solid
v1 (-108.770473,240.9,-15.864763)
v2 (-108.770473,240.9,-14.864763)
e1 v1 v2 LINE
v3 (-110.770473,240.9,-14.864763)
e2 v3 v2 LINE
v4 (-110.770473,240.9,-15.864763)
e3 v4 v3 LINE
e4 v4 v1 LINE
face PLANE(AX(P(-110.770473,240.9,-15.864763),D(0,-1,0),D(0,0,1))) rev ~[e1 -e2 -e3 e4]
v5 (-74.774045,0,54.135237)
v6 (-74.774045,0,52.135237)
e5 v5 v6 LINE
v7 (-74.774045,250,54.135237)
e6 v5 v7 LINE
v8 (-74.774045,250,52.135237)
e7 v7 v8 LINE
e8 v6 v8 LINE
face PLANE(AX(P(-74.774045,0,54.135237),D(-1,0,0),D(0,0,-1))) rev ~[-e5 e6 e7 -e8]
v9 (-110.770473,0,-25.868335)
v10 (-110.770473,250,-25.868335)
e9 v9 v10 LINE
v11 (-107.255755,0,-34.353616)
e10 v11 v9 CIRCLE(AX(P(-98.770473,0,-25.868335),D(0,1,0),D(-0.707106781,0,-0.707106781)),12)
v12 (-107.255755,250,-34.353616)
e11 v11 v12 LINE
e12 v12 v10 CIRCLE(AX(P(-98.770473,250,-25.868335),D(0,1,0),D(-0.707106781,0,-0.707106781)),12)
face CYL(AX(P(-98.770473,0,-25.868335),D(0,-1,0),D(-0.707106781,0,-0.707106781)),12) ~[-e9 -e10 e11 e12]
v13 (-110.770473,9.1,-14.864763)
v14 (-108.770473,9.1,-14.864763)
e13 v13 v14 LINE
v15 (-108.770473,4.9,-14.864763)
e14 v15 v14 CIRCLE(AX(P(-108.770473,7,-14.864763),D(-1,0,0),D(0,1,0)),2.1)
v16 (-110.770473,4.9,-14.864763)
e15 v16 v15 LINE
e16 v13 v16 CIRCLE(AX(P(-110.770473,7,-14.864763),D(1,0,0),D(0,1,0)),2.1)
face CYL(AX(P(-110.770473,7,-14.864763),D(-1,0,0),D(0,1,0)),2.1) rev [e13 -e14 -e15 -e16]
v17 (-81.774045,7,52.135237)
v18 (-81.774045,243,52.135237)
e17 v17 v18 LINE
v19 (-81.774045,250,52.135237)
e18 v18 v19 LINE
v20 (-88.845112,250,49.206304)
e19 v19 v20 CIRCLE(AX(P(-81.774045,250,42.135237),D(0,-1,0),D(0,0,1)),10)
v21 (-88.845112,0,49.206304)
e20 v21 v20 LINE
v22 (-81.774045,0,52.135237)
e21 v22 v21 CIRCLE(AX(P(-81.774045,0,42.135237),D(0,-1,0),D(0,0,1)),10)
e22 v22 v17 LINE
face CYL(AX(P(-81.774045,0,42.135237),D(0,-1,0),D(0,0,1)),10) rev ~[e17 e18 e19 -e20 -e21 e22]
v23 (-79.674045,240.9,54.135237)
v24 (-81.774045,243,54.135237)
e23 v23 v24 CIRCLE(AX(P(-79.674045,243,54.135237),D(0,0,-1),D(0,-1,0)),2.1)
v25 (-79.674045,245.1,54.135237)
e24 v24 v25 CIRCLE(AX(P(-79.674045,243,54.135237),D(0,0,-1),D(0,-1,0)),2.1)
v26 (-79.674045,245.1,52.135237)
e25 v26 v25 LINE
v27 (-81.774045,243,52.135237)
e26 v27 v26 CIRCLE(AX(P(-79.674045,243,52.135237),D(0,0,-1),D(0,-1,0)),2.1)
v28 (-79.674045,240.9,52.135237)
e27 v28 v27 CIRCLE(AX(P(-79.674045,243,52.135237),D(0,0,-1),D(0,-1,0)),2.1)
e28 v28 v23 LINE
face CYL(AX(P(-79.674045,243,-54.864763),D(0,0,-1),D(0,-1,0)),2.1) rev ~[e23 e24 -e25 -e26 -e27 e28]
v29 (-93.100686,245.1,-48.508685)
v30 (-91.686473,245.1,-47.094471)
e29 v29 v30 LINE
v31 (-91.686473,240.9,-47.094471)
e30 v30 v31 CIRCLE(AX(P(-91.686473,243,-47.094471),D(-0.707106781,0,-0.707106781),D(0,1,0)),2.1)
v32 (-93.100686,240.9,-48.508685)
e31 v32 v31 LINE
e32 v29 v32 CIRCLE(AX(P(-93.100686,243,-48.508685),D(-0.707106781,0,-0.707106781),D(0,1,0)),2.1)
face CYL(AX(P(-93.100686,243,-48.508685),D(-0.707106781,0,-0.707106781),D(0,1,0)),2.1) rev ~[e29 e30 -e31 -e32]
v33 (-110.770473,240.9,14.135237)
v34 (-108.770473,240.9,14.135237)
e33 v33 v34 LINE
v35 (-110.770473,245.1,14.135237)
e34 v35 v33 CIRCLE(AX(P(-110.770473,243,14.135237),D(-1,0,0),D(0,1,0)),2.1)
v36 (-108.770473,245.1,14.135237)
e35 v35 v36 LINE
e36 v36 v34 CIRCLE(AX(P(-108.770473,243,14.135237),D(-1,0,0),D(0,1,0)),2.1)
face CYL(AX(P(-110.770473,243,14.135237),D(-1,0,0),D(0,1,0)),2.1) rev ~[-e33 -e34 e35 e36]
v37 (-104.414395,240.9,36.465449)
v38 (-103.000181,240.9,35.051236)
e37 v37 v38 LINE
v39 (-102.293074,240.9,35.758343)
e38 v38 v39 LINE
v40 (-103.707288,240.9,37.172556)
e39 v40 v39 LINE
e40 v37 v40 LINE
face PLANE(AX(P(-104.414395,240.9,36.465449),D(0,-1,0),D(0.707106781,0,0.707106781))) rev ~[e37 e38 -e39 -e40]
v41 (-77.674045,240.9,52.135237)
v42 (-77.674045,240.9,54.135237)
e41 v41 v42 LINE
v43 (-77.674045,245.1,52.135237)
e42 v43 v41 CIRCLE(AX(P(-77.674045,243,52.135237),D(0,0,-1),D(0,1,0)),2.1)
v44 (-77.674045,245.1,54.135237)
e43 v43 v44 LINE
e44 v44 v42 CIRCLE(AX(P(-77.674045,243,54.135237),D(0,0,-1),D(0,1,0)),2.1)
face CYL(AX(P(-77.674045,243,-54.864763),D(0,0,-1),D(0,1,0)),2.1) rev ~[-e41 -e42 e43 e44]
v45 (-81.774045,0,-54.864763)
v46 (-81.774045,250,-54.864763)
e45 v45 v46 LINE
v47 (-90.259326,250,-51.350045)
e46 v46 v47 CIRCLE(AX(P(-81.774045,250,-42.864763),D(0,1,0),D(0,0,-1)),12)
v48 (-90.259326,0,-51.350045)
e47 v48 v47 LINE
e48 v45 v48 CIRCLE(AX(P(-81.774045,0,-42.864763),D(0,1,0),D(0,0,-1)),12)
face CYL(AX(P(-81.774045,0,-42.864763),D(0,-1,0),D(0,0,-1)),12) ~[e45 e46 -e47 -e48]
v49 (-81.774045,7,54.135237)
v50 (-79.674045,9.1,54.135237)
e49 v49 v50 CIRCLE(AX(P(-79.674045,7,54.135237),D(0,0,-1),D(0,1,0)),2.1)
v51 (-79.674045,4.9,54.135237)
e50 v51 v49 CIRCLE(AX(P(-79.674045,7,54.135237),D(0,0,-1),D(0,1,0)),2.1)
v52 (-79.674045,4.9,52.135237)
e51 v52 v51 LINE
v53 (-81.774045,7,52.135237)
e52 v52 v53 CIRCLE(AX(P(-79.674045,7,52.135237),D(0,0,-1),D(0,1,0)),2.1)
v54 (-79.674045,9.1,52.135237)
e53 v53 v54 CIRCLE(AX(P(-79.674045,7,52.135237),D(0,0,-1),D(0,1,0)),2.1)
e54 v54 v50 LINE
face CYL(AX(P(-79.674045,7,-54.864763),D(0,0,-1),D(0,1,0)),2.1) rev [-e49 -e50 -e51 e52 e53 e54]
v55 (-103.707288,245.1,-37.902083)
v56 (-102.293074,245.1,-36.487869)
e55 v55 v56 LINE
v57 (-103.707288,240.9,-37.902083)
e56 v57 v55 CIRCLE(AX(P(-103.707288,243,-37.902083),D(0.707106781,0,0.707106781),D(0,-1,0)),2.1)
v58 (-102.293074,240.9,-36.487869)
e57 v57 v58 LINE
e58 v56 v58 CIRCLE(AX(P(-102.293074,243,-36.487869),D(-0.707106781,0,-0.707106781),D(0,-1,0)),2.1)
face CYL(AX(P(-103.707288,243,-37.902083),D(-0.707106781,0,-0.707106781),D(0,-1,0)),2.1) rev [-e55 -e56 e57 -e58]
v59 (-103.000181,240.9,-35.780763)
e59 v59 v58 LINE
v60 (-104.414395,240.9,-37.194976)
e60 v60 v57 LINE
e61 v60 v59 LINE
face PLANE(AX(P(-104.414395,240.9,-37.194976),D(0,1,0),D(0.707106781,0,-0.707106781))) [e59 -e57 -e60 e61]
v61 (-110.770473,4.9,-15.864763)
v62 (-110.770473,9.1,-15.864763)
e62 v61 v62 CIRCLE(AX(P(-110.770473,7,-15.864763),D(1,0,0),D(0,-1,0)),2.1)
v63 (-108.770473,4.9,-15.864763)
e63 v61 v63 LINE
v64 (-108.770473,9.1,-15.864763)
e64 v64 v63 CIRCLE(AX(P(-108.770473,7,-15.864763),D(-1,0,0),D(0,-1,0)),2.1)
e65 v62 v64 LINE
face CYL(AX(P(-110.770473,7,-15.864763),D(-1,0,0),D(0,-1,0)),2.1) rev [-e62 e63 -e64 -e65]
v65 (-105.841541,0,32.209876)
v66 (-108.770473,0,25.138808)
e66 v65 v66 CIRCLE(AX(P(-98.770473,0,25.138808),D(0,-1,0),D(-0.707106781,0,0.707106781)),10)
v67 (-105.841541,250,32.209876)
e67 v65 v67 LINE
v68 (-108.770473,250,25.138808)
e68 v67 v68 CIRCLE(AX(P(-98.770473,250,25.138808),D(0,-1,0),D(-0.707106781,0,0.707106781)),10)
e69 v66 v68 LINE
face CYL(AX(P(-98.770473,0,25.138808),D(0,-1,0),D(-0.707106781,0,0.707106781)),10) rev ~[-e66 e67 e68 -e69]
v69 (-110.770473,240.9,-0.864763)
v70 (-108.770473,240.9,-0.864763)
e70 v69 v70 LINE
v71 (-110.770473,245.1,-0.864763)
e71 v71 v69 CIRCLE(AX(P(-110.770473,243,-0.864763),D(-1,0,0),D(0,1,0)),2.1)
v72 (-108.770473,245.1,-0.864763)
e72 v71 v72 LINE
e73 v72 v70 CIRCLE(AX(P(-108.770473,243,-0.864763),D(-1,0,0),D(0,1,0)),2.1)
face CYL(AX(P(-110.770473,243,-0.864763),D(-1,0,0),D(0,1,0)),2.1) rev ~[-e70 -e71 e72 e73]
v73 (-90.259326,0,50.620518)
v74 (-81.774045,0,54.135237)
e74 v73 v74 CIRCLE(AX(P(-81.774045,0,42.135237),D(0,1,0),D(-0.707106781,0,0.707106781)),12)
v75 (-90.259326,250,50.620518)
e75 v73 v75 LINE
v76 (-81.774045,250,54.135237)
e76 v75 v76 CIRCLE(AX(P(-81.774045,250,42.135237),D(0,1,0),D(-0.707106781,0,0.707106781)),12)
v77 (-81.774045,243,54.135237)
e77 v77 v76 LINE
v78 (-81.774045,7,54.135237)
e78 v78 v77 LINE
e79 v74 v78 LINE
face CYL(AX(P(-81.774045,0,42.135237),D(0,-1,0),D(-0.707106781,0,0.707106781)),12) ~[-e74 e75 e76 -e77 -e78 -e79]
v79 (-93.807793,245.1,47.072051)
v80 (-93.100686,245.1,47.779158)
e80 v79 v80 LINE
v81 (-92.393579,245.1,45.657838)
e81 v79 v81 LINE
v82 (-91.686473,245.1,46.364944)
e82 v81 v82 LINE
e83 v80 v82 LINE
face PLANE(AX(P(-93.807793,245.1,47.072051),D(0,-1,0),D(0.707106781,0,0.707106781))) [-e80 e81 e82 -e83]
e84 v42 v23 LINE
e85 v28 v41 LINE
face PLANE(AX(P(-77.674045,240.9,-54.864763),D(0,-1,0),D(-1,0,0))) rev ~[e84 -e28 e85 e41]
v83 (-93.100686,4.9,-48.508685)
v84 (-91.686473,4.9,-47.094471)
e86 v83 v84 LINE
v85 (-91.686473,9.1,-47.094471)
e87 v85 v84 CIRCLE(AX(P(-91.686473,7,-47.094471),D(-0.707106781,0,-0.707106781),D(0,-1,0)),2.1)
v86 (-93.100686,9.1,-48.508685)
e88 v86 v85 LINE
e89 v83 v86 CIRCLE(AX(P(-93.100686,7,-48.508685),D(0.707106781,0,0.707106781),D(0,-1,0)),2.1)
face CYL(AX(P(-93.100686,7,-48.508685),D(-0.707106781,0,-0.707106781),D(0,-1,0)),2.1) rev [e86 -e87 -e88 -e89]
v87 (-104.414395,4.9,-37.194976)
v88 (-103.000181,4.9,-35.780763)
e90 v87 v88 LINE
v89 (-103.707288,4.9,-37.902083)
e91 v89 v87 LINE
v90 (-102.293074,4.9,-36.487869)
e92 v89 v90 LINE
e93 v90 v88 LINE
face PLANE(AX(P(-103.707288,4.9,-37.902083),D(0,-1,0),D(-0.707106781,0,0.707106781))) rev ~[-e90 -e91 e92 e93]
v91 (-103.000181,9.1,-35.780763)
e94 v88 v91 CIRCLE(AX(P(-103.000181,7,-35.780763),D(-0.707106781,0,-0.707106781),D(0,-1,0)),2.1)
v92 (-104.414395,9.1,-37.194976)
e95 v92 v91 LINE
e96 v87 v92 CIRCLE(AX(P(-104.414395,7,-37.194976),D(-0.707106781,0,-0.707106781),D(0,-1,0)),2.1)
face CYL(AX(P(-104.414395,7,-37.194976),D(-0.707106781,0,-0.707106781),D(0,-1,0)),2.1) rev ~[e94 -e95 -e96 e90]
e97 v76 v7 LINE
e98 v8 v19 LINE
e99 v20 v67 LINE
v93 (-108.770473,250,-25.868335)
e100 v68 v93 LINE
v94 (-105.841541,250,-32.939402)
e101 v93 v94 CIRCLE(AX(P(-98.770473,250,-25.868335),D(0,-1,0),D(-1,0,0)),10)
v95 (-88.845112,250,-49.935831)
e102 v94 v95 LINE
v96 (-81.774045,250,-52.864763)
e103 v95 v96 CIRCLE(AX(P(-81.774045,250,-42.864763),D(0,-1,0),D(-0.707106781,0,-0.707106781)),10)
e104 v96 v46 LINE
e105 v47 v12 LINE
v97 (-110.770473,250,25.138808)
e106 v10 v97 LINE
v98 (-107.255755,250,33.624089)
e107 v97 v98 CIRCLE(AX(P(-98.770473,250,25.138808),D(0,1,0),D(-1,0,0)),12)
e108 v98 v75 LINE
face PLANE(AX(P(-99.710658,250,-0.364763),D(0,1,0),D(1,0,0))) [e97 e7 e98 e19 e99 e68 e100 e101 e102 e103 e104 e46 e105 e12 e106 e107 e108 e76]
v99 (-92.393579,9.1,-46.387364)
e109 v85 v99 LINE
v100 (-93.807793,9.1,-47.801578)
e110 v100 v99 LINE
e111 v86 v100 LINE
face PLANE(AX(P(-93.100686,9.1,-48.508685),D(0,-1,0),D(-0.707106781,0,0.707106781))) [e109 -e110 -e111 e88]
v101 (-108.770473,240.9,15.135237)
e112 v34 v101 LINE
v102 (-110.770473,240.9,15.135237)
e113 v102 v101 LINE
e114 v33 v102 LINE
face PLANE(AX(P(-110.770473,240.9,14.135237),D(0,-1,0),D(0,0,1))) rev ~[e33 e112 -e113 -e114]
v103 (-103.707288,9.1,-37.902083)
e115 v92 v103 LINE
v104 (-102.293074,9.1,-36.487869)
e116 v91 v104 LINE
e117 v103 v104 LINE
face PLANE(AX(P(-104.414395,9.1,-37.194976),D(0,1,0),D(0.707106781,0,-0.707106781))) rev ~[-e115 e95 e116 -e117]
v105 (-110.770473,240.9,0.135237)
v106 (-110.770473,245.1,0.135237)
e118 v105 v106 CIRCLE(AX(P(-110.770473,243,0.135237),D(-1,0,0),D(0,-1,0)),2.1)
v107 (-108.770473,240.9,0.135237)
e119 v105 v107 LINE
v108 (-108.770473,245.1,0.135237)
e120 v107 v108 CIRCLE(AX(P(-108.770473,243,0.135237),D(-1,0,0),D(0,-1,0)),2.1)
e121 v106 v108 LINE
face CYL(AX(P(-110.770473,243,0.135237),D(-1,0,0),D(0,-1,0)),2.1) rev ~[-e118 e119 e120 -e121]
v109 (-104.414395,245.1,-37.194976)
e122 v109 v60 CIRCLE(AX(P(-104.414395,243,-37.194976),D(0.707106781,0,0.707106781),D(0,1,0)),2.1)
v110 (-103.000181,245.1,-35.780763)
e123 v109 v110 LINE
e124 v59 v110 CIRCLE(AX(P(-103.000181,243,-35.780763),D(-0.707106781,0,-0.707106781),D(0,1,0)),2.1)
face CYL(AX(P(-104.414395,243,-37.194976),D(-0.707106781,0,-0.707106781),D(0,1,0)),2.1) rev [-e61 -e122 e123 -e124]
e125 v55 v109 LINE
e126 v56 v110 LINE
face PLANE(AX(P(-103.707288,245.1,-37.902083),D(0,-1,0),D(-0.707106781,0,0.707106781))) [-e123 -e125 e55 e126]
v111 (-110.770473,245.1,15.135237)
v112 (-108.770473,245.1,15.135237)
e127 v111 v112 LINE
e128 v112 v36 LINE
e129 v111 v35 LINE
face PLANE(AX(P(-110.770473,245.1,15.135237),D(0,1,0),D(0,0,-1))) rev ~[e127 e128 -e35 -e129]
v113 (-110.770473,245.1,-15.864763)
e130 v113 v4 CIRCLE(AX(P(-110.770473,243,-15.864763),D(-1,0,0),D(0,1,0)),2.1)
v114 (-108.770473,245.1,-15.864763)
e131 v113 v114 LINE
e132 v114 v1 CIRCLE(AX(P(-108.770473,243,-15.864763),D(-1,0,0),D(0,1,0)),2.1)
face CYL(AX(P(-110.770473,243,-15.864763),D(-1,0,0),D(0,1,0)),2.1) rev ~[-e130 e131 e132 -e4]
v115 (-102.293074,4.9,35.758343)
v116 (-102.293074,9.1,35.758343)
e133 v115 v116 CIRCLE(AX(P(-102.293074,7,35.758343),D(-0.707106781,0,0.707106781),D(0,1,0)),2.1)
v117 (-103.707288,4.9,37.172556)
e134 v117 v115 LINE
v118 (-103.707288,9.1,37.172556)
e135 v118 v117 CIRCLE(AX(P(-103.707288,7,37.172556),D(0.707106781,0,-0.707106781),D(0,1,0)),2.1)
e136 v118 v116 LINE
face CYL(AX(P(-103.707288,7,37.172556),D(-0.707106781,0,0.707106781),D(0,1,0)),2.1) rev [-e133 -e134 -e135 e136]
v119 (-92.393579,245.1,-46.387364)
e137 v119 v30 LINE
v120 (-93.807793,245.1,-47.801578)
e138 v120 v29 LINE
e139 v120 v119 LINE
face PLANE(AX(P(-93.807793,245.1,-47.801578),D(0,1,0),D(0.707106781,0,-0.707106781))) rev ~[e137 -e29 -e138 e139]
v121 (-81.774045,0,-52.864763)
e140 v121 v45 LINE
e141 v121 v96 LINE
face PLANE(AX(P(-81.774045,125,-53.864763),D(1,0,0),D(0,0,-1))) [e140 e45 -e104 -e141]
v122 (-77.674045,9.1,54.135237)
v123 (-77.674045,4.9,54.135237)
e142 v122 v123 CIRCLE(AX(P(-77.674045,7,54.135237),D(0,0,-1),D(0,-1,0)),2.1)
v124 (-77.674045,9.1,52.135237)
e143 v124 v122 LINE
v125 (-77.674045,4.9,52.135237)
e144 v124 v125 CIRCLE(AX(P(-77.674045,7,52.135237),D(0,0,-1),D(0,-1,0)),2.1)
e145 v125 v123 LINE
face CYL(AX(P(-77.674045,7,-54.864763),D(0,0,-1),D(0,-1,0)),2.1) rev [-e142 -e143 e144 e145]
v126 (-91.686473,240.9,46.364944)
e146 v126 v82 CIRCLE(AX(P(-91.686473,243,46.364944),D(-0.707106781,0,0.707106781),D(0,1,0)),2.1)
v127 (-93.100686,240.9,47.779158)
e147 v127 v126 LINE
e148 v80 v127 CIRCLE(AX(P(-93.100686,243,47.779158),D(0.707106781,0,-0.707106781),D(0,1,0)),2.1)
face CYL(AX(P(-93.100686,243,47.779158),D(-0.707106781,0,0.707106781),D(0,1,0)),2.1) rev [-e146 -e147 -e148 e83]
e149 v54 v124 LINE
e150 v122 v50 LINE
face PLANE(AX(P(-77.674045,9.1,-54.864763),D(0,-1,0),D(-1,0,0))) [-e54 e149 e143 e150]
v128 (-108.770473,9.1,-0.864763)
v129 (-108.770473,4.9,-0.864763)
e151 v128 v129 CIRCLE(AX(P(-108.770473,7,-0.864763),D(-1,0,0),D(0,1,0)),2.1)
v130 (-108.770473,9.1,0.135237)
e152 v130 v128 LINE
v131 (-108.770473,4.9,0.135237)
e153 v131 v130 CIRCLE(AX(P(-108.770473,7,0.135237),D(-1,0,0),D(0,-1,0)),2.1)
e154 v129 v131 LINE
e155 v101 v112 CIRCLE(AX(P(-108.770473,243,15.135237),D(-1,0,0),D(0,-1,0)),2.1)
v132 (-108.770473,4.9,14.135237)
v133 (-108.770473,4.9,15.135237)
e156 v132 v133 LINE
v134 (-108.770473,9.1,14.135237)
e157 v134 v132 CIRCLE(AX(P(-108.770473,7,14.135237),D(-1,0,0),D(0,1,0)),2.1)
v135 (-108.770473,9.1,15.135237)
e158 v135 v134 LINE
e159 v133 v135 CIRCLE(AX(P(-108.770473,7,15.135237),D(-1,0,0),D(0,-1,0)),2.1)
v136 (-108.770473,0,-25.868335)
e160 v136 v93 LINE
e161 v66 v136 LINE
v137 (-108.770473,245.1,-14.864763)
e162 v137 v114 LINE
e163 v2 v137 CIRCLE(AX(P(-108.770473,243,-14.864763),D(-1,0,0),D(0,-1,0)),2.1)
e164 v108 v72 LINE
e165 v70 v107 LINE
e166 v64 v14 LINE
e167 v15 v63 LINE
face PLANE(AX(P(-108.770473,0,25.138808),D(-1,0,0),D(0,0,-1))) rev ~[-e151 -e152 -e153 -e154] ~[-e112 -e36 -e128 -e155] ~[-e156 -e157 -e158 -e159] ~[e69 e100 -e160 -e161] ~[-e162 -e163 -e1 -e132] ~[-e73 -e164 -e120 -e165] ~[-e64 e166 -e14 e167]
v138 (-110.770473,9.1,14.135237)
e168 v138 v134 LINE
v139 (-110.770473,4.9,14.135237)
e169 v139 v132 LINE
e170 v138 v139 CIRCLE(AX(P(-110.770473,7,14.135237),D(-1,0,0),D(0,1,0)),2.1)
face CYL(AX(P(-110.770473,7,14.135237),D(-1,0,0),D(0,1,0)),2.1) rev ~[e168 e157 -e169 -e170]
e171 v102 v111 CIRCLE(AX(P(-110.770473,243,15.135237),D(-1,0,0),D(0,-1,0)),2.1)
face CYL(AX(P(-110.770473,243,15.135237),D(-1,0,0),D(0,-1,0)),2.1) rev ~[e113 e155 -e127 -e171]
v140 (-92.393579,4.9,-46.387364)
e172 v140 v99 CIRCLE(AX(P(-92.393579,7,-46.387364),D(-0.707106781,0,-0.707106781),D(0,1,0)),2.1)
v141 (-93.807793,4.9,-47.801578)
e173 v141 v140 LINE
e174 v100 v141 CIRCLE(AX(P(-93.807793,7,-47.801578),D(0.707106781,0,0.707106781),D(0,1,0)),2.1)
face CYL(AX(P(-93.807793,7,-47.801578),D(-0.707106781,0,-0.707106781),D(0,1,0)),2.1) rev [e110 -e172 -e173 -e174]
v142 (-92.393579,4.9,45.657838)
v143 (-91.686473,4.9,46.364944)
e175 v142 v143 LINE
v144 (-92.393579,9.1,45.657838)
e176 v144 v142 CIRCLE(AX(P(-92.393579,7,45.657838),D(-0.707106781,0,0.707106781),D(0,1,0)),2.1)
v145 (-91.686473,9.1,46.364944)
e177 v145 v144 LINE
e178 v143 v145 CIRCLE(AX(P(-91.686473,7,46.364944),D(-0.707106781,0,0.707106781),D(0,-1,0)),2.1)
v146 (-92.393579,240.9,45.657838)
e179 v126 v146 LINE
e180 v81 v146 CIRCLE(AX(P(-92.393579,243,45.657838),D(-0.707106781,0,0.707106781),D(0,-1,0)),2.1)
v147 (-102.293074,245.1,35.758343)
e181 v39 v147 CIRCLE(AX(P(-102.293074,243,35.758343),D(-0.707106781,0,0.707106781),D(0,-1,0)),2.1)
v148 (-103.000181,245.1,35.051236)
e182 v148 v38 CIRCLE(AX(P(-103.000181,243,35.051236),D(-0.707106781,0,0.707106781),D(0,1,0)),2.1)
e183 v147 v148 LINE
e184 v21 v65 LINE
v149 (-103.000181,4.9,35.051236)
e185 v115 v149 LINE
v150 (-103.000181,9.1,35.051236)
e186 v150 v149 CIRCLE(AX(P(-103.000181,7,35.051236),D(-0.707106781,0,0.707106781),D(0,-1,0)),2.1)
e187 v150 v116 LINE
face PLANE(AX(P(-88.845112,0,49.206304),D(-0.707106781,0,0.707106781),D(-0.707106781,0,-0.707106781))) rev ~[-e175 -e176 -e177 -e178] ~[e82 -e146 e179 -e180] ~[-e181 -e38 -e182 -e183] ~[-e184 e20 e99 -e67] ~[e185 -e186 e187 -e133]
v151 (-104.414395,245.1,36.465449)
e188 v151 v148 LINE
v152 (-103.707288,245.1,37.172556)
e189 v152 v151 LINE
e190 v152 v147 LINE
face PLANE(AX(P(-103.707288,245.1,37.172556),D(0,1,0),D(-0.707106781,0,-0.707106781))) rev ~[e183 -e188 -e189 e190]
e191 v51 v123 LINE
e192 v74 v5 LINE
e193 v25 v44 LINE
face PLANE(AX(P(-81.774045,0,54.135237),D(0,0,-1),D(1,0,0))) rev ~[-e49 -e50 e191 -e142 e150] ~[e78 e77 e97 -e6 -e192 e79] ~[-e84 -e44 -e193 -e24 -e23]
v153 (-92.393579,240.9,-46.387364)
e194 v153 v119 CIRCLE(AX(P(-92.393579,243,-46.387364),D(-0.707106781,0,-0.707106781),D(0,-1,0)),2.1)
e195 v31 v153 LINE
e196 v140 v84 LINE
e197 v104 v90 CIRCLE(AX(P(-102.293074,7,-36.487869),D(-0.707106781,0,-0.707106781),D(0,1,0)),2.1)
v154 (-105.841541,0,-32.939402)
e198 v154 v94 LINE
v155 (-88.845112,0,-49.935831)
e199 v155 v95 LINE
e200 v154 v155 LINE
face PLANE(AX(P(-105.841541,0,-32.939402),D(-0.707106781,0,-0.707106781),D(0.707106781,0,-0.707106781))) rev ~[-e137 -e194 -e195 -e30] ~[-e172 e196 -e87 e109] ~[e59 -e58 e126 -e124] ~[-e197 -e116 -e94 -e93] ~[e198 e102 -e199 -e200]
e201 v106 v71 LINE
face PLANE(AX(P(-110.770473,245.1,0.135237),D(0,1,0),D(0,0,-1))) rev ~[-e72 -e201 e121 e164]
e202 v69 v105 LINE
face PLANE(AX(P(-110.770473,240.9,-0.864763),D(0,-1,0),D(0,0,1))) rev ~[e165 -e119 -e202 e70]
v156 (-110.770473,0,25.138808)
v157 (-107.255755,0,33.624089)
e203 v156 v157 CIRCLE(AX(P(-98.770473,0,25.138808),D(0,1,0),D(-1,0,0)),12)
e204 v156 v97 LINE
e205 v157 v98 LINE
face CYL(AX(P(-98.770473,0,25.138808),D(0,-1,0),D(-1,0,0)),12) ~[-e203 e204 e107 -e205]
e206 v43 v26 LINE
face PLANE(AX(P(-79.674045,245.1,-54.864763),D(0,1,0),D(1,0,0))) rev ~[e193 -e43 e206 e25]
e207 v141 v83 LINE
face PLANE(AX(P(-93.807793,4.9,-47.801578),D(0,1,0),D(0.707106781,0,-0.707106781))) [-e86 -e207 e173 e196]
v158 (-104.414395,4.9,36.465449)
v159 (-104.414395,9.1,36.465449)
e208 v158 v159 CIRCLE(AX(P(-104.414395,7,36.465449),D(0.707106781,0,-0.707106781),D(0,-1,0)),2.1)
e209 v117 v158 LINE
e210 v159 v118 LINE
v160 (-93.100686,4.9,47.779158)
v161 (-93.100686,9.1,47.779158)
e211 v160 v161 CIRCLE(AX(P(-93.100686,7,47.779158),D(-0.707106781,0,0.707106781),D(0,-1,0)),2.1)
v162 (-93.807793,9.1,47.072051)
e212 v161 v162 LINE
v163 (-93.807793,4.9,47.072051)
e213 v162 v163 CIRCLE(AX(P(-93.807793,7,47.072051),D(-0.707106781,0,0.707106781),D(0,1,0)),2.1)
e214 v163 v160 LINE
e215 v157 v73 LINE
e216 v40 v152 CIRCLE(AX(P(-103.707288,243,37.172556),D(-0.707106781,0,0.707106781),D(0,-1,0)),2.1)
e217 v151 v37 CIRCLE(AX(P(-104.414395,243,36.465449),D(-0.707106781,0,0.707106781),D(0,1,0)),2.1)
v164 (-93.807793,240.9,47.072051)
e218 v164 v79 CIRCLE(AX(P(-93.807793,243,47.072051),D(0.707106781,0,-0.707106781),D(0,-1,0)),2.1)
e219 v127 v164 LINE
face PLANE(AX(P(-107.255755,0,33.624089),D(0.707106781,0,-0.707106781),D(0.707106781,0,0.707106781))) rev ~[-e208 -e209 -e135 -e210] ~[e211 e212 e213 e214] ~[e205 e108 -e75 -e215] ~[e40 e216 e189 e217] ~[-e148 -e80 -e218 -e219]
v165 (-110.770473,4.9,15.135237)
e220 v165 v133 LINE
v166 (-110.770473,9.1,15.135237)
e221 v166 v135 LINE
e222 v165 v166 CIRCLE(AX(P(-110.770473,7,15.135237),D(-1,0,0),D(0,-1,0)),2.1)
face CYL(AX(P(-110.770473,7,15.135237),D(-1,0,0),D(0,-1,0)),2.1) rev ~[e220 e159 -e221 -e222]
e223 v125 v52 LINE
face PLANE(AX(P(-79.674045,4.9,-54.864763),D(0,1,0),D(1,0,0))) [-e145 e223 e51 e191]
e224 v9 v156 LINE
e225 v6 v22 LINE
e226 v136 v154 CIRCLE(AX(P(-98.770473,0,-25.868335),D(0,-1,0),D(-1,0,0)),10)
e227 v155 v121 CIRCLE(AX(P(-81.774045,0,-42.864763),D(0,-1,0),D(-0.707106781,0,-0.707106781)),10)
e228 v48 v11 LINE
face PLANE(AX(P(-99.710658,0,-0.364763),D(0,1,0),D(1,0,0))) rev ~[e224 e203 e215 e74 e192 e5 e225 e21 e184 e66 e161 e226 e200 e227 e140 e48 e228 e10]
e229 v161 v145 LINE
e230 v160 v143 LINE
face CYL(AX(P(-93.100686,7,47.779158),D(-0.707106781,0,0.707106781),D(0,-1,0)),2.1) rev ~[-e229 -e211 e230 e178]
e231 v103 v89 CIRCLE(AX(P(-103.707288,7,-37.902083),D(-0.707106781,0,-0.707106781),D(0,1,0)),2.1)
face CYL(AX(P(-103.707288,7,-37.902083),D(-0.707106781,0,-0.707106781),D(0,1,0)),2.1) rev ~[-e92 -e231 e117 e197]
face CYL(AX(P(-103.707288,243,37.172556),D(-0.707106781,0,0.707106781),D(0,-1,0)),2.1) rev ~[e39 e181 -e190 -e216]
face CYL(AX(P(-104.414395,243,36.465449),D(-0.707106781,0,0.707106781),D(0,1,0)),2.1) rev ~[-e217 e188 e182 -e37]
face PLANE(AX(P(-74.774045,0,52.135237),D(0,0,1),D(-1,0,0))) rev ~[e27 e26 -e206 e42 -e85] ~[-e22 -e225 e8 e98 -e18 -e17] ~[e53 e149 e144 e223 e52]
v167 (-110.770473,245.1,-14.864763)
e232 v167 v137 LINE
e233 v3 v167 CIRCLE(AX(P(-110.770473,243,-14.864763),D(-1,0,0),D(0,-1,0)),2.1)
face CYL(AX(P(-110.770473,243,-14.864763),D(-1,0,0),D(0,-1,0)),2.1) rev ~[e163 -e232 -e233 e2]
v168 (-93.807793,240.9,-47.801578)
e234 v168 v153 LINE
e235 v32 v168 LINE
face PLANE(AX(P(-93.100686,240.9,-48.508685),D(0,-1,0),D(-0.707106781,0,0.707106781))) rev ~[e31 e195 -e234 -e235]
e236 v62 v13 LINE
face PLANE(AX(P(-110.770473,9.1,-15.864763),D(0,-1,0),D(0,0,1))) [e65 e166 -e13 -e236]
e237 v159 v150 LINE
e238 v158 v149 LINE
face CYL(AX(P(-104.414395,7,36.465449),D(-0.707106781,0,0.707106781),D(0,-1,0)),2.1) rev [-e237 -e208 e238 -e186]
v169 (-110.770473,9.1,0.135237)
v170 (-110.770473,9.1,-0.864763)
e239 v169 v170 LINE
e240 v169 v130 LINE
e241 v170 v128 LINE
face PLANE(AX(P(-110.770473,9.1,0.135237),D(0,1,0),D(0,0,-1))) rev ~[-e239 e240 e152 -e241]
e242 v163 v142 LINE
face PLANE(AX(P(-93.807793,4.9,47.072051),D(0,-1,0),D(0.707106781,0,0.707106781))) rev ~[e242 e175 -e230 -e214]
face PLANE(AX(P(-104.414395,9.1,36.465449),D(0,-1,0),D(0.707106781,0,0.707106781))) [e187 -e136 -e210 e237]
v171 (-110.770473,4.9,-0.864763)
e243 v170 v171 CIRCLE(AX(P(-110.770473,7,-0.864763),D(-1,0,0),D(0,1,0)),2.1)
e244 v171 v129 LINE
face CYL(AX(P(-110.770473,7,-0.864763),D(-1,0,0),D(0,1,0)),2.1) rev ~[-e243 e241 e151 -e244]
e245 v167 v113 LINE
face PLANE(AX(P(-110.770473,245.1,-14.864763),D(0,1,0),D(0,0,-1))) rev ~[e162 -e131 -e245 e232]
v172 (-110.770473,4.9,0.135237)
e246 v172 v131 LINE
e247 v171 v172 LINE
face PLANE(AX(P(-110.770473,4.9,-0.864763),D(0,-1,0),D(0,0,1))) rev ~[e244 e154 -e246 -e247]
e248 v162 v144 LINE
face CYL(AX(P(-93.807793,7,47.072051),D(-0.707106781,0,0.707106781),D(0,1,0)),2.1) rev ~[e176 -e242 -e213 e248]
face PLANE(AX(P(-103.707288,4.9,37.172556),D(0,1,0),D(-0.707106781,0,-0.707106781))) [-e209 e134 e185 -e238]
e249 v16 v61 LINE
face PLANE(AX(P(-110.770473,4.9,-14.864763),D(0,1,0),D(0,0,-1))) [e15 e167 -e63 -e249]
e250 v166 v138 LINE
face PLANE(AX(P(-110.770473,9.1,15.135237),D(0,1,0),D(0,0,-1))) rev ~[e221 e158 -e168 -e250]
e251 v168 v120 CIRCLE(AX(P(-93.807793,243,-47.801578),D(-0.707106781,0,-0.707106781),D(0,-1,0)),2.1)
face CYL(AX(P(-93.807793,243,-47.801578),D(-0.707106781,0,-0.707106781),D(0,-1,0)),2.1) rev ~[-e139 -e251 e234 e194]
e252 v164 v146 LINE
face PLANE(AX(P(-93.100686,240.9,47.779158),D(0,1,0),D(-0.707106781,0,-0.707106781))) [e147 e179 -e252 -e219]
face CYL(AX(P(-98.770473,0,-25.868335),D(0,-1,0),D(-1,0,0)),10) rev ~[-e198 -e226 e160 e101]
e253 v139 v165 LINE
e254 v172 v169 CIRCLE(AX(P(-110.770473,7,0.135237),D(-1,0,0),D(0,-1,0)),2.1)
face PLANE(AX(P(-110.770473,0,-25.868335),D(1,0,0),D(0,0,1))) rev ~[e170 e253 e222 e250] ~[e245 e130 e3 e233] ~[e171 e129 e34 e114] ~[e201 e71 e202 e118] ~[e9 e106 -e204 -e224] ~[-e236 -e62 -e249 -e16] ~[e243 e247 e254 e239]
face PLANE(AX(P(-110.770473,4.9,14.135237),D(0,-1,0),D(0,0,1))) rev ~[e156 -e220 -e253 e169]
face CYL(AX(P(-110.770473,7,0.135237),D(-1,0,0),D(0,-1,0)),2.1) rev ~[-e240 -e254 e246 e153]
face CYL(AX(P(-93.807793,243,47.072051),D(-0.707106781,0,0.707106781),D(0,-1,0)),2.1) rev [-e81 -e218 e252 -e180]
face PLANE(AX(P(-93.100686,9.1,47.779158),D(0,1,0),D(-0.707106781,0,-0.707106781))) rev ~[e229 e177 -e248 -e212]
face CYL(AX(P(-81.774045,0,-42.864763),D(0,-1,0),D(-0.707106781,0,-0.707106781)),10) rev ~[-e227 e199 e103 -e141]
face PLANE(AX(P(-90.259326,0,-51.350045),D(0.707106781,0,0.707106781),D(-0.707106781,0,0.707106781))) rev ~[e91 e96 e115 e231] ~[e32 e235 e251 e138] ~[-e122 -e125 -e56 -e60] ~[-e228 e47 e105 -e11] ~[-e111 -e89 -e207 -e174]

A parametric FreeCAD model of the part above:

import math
import FreeCAD as App
import Part
import Sketcher
from FreeCAD import Vector
Q = App.Units.Quantity

doc = App.newDocument("Part")
body = doc.addObject("PartDesign::Body", "Body")

# Sketch on XZ plane
sketch1 = body.newObject("Sketcher::SketchObject", "Sketch")
sketch1.AttachmentSupport = (doc.getObject("XZ_Plane"), [""])
sketch1.MapMode = "FlatFace"
sketch1.addGeometry([
    Part.LineSegment(Vector(-74.8, -52.9, 0), Vector(-74.8, -54.9, 0)),  # 0
    Part.LineSegment(Vector(-74.8, -54.9, 0), Vector(-81.8, -54.9, 0)),  # 1
    Part.ArcOfCircle(Part.Circle(Vector(-81.8, -42.9, 0), Vector(0, 0, 1), 12), math.radians(-135), math.radians(-90)),  # 2
    Part.LineSegment(Vector(-90.3, -51.4, 0), Vector(-107.3, -34.4, 0)),  # 3
    Part.ArcOfCircle(Part.Circle(Vector(-98.8, -25.9, 0), Vector(0, 0, 1), 12), math.radians(-180), math.radians(-135)),  # 4
    Part.LineSegment(Vector(-110.8, -25.9, 0), Vector(-110.8, 25.1, 0)),  # 5
    Part.ArcOfCircle(Part.Circle(Vector(-98.8, 25.1, 0), Vector(0, 0, 1), 12), math.radians(135), math.radians(180)),  # 6
    Part.LineSegment(Vector(-107.3, 33.6, 0), Vector(-90.3, 50.6, 0)),  # 7
    Part.ArcOfCircle(Part.Circle(Vector(-81.8, 42.1, 0), Vector(0, 0, 1), 12), math.radians(90), math.radians(135)),  # 8
    Part.LineSegment(Vector(-81.8, 54.1, 0), Vector(-74.8, 54.1, 0)),  # 9
    Part.LineSegment(Vector(-74.8, 54.1, 0), Vector(-74.8, 52.1, 0)),  # 10
    Part.LineSegment(Vector(-74.8, 52.1, 0), Vector(-81.8, 52.1, 0)),  # 11
    Part.ArcOfCircle(Part.Circle(Vector(-81.8, 42.1, 0), Vector(0, 0, 1), 10), math.radians(90), math.radians(135)),  # 12
    Part.LineSegment(Vector(-88.8, 49.2, 0), Vector(-105.8, 32.2, 0)),  # 13
    Part.ArcOfCircle(Part.Circle(Vector(-98.8, 25.1, 0), Vector(0, 0, 1), 10), math.radians(135), math.radians(180)),  # 14
    Part.LineSegment(Vector(-108.8, 25.1, 0), Vector(-108.8, -25.9, 0)),  # 15
    Part.ArcOfCircle(Part.Circle(Vector(-98.8, -25.9, 0), Vector(0, 0, 1), 10), math.radians(180), math.radians(225)),  # 16
    Part.LineSegment(Vector(-105.8, -32.9, 0), Vector(-88.8, -49.9, 0)),  # 17
    Part.ArcOfCircle(Part.Circle(Vector(-81.8, -42.9, 0), Vector(0, 0, 1), 10), math.radians(-135), math.radians(-90)),  # 18
    Part.LineSegment(Vector(-81.8, -52.9, 0), Vector(-74.8, -52.9, 0)),  # 19
], False)
sketch1.addConstraint([
    Sketcher.Constraint("Coincident", 0, 2, 1, 1),
    Sketcher.Constraint("Tangent", 1, 2, 2, 2),
    Sketcher.Constraint("Tangent", 2, 1, 3, 1),
    Sketcher.Constraint("Tangent", 3, 2, 4, 2),
    Sketcher.Constraint("Tangent", 4, 1, 5, 1),
    Sketcher.Constraint("Tangent", 5, 2, 6, 2),
    Sketcher.Constraint("Tangent", 6, 1, 7, 1),
    Sketcher.Constraint("Tangent", 7, 2, 8, 2),
    Sketcher.Constraint("Tangent", 8, 1, 9, 1),
    Sketcher.Constraint("Coincident", 9, 2, 10, 1),
    Sketcher.Constraint("Coincident", 10, 2, 11, 1),
    Sketcher.Constraint("Tangent", 11, 2, 12, 1),
    Sketcher.Constraint("Tangent", 12, 2, 13, 1),
    Sketcher.Constraint("Tangent", 13, 2, 14, 1),
    Sketcher.Constraint("Tangent", 14, 2, 15, 1),
    Sketcher.Constraint("Tangent", 15, 2, 16, 1),
    Sketcher.Constraint("Tangent", 16, 2, 17, 1),
    Sketcher.Constraint("Tangent", 17, 2, 18, 1),
    Sketcher.Constraint("Tangent", 18, 2, 19, 1),
    Sketcher.Constraint("Coincident", 19, 2, 0, 1),
    Sketcher.Constraint("Vertical", 0),
    Sketcher.Constraint("Horizontal", 1),
    Sketcher.Constraint("Vertical", 5),
    Sketcher.Constraint("Horizontal", 9),
    Sketcher.Constraint("Vertical", 10),
    Sketcher.Constraint("Horizontal", 11),
    Sketcher.Constraint("Vertical", 15),
    Sketcher.Constraint("Horizontal", 19),
    Sketcher.Constraint("Coincident", 12, 3, 8, 3),
    Sketcher.Constraint("Coincident", 14, 3, 6, 3),
    Sketcher.Constraint("Coincident", 16, 3, 4, 3),
    Sketcher.Constraint("Coincident", 18, 3, 2, 3),
    Sketcher.Constraint("Equal", 2, 4),
    Sketcher.Constraint("Equal", 4, 6),
    Sketcher.Constraint("Equal", 6, 8),
    Sketcher.Constraint("Equal", 12, 14),
    Sketcher.Constraint("Equal", 16, 18),
    Sketcher.Constraint("Perpendicular", 3, 7),
    Sketcher.Constraint("Vertical", 2, 3, 8, 3),
    Sketcher.Constraint("Vertical", 3, 2, 6, 1),
    Sketcher.Constraint("Vertical", 0, 2, 9, 2),
    Sketcher.Constraint("Radius", 2, Q("12 mm")),
    Sketcher.Constraint("Radius", 12, Q("10 mm")),
    Sketcher.Constraint("DistanceX", 1, 2, 1, 1, Q("7 mm")),
    Sketcher.Constraint("DistanceY", 2, 3, 8, 3, Q("85 mm")),
    Sketcher.Constraint("Distance", 3, Q("24.03658 mm")),
    Sketcher.Constraint("DistanceY", -1, 1, 5, 2, Q("25.138808 mm")),
    Sketcher.Constraint("DistanceX", 13, 2, -1, 1, Q("105.841541 mm")),
])
pad1 = body.newObject("PartDesign::Pad", "Pad")
pad1.Profile = sketch1
pad1.Length = 250
pad1.Reversed = True

# Sketch on XY plane
sketch2 = body.newObject("Sketcher::SketchObject", "Sketch001")
sketch2.AttachmentSupport = (doc.getObject("XY_Plane"), [""])
sketch2.MapMode = "FlatFace"
sketch2.AttachmentOffset = App.Placement(Vector(0, 0, -54.864763), App.Rotation())
sketch2.addGeometry([
    Part.ArcOfCircle(Part.Circle(Vector(-79.7, 243, 0), Vector(0, 0, 1), 2.1), math.radians(90), math.radians(270)),  # 0
    Part.LineSegment(Vector(-79.7, 245.1, 0), Vector(-77.7, 245.1, 0)),  # 1
    Part.ArcOfCircle(Part.Circle(Vector(-77.7, 243, 0), Vector(0, 0, 1), 2.1), math.radians(-90), math.radians(90)),  # 2
    Part.LineSegment(Vector(-77.7, 240.9, 0), Vector(-79.7, 240.9, 0)),  # 3
    Part.ArcOfCircle(Part.Circle(Vector(-79.7, 7, 0), Vector(0, 0, 1), 2.1), math.radians(90), math.radians(270)),  # 4
    Part.LineSegment(Vector(-79.7, 9.1, 0), Vector(-77.7, 9.1, 0)),  # 5
    Part.ArcOfCircle(Part.Circle(Vector(-77.7, 7, 0), Vector(0, 0, 1), 2.1), math.radians(-90), math.radians(90)),  # 6
    Part.LineSegment(Vector(-77.7, 4.9, 0), Vector(-79.7, 4.9, 0)),  # 7
], False)
sketch2.addConstraint([
    Sketcher.Constraint("Tangent", 0, 1, 1, 1),
    Sketcher.Constraint("Tangent", 1, 2, 2, 2),
    Sketcher.Constraint("Tangent", 2, 1, 3, 1),
    Sketcher.Constraint("Tangent", 3, 2, 0, 2),
    Sketcher.Constraint("Tangent", 4, 1, 5, 1),
    Sketcher.Constraint("Tangent", 5, 2, 6, 2),
    Sketcher.Constraint("Tangent", 6, 1, 7, 1),
    Sketcher.Constraint("Tangent", 7, 2, 4, 2),
    Sketcher.Constraint("Horizontal", 1),
    Sketcher.Constraint("Horizontal", 3),
    Sketcher.Constraint("Horizontal", 5),
    Sketcher.Constraint("Horizontal", 7),
    Sketcher.Constraint("Equal", 2, 4),
    Sketcher.Constraint("Vertical", 0, 3, 4, 3),
    Sketcher.Constraint("Vertical", 2, 3, 6, 3),
    Sketcher.Constraint("Radius", 0, Q("2.1 mm")),
    Sketcher.Constraint("DistanceX", 1, 1, 1, 2, Q("2 mm")),
    Sketcher.Constraint("DistanceY", -1, 1, 0, 3, Q("243 mm")),
    Sketcher.Constraint("DistanceY", -1, 1, 4, 3, Q("7 mm")),
    Sketcher.Constraint("DistanceX", 0, 3, -1, 1, Q("79.674045 mm")),
])
pocket1 = body.newObject("PartDesign::Pocket", "Pocket")
pocket1.Profile = sketch2
pocket1.Length = 250
pocket1.Reversed = True

# Sketch on an angled plane
sketch3 = body.newObject("Sketcher::SketchObject", "Sketch002")
sketch3.Placement = App.Placement(Vector(-70.804685, 0, -70.804685), App.Rotation(Vector(-0.707106781, 0, 0.707106781), Vector(0, 0.999999999, 0), Vector(-0.707106781, 0, -0.707106781), "ZXY"))
sketch3.addGeometry([
    Part.LineSegment(Vector(32.5, 9.1, 0), Vector(31.5, 9.1, 0)),  # 0
    Part.ArcOfCircle(Part.Circle(Vector(31.5, 7, 0), Vector(0, 0, 1), 2.1), math.radians(90), math.radians(270)),  # 1
    Part.LineSegment(Vector(31.5, 4.9, 0), Vector(32.5, 4.9, 0)),  # 2
    Part.ArcOfCircle(Part.Circle(Vector(32.5, 7, 0), Vector(0, 0, 1), 2.1), math.radians(-90), math.radians(90)),  # 3
    Part.LineSegment(Vector(47.5, 9.1, 0), Vector(46.5, 9.1, 0)),  # 4
    Part.ArcOfCircle(Part.Circle(Vector(46.5, 7, 0), Vector(0, 0, 1), 2.1), math.radians(90), math.radians(270)),  # 5
    Part.LineSegment(Vector(46.5, 4.9, 0), Vector(47.5, 4.9, 0)),  # 6
    Part.ArcOfCircle(Part.Circle(Vector(47.5, 7, 0), Vector(0, 0, 1), 2.1), math.radians(-90), math.radians(90)),  # 7
    Part.LineSegment(Vector(46.5, 240.9, 0), Vector(47.5, 240.9, 0)),  # 8
    Part.ArcOfCircle(Part.Circle(Vector(47.5, 243, 0), Vector(0, 0, 1), 2.1), math.radians(-90), math.radians(90)),  # 9
    Part.LineSegment(Vector(47.5, 245.1, 0), Vector(46.5, 245.1, 0)),  # 10
    Part.ArcOfCircle(Part.Circle(Vector(46.5, 243, 0), Vector(0, 0, 1), 2.1), math.radians(90), math.radians(270)),  # 11
    Part.LineSegment(Vector(31.5, 240.9, 0), Vector(32.5, 240.9, 0)),  # 12
    Part.ArcOfCircle(Part.Circle(Vector(32.5, 243, 0), Vector(0, 0, 1), 2.1), math.radians(-90), math.radians(90)),  # 13
    Part.LineSegment(Vector(32.5, 245.1, 0), Vector(31.5, 245.1, 0)),  # 14
    Part.ArcOfCircle(Part.Circle(Vector(31.5, 243, 0), Vector(0, 0, 1), 2.1), math.radians(90), math.radians(270)),  # 15
], False)
sketch3.addConstraint([
    Sketcher.Constraint("Tangent", 0, 2, 1, 1),
    Sketcher.Constraint("Tangent", 1, 2, 2, 1),
    Sketcher.Constraint("Tangent", 2, 2, 3, 1),
    Sketcher.Constraint("Tangent", 3, 2, 0, 1),
    Sketcher.Constraint("Tangent", 4, 2, 5, 1),
    Sketcher.Constraint("Tangent", 5, 2, 6, 1),
    Sketcher.Constraint("Tangent", 6, 2, 7, 1),
    Sketcher.Constraint("Tangent", 7, 2, 4, 1),
    Sketcher.Constraint("Tangent", 8, 2, 9, 1),
    Sketcher.Constraint("Tangent", 9, 2, 10, 1),
    Sketcher.Constraint("Tangent", 10, 2, 11, 1),
    Sketcher.Constraint("Tangent", 11, 2, 8, 1),
    Sketcher.Constraint("Tangent", 12, 2, 13, 1),
    Sketcher.Constraint("Tangent", 13, 2, 14, 1),
    Sketcher.Constraint("Tangent", 14, 2, 15, 1),
    Sketcher.Constraint("Tangent", 15, 2, 12, 1),
    Sketcher.Constraint("Horizontal", 0),
    Sketcher.Constraint("Horizontal", 2),
    Sketcher.Constraint("Horizontal", 4),
    Sketcher.Constraint("Horizontal", 6),
    Sketcher.Constraint("Horizontal", 8),
    Sketcher.Constraint("Horizontal", 10),
    Sketcher.Constraint("Horizontal", 12),
    Sketcher.Constraint("Horizontal", 14),
    Sketcher.Constraint("Equal", 3, 5),
    Sketcher.Constraint("Equal", 7, 9),
    Sketcher.Constraint("Equal", 11, 13),
    Sketcher.Constraint("Horizontal", 3, 3, 5, 3),
    Sketcher.Constraint("Horizontal", 11, 3, 13, 3),
    Sketcher.Constraint("Vertical", 7, 3, 9, 3),
    Sketcher.Constraint("Vertical", 5, 3, 11, 3),
    Sketcher.Constraint("Vertical", 3, 3, 13, 3),
    Sketcher.Constraint("Vertical", 1, 3, 15, 3),
    Sketcher.Constraint("Equal", 2, 4),
    Sketcher.Constraint("Radius", 1, Q("2.1 mm")),
    Sketcher.Constraint("DistanceX", 0, 2, 0, 1, Q("1 mm")),
    Sketcher.Constraint("DistanceY", -1, 1, 1, 3, Q("7 mm")),
    Sketcher.Constraint("DistanceY", -1, 1, 9, 3, Q("243 mm")),
    Sketcher.Constraint("DistanceX", 3, 3, 5, 3, Q("14 mm")),
    Sketcher.Constraint("DistanceX", -1, 1, 1, 3, Q("31.531307 mm")),
])
pocket2 = body.newObject("PartDesign::Pocket", "Pocket001")
pocket2.Profile = sketch3
pocket2.Length = 250

# Sketch on an angled plane
sketch4 = body.newObject("Sketcher::SketchObject", "Sketch003")
sketch4.Placement = App.Placement(Vector(-70.439922, 0, 70.439922), App.Rotation(Vector(0.707106781, 0, 0.707106781), Vector(0, 0.999999999, 0), Vector(-0.707106781, 0, 0.707106781), "ZXY"))
sketch4.addGeometry([
    Part.LineSegment(Vector(-47, 9.1, 0), Vector(-48, 9.1, 0)),  # 0
    Part.ArcOfCircle(Part.Circle(Vector(-48, 7, 0), Vector(0, 0, 1), 2.1), math.radians(90), math.radians(270)),  # 1
    Part.LineSegment(Vector(-48, 4.9, 0), Vector(-47, 4.9, 0)),  # 2
    Part.ArcOfCircle(Part.Circle(Vector(-47, 7, 0), Vector(0, 0, 1), 2.1), math.radians(-90), math.radians(90)),  # 3
    Part.LineSegment(Vector(-32, 9.1, 0), Vector(-33, 9.1, 0)),  # 4
    Part.ArcOfCircle(Part.Circle(Vector(-33, 7, 0), Vector(0, 0, 1), 2.1), math.radians(90), math.radians(270)),  # 5
    Part.LineSegment(Vector(-33, 4.9, 0), Vector(-32, 4.9, 0)),  # 6
    Part.ArcOfCircle(Part.Circle(Vector(-32, 7, 0), Vector(0, 0, 1), 2.1), math.radians(-90), math.radians(90)),  # 7
    Part.LineSegment(Vector(-33, 240.9, 0), Vector(-32, 240.9, 0)),  # 8
    Part.ArcOfCircle(Part.Circle(Vector(-32, 243, 0), Vector(0, 0, 1), 2.1), math.radians(-90), math.radians(90)),  # 9
    Part.LineSegment(Vector(-32, 245.1, 0), Vector(-33, 245.1, 0)),  # 10
    Part.ArcOfCircle(Part.Circle(Vector(-33, 243, 0), Vector(0, 0, 1), 2.1), math.radians(90), math.radians(270)),  # 11
    Part.LineSegment(Vector(-48, 240.9, 0), Vector(-47, 240.9, 0)),  # 12
    Part.ArcOfCircle(Part.Circle(Vector(-47, 243, 0), Vector(0, 0, 1), 2.1), math.radians(-90), math.radians(90)),  # 13
    Part.LineSegment(Vector(-47, 245.1, 0), Vector(-48, 245.1, 0)),  # 14
    Part.ArcOfCircle(Part.Circle(Vector(-48, 243, 0), Vector(0, 0, 1), 2.1), math.radians(90), math.radians(270)),  # 15
], False)
sketch4.addConstraint([
    Sketcher.Constraint("Tangent", 0, 2, 1, 1),
    Sketcher.Constraint("Tangent", 1, 2, 2, 1),
    Sketcher.Constraint("Tangent", 2, 2, 3, 1),
    Sketcher.Constraint("Tangent", 3, 2, 0, 1),
    Sketcher.Constraint("Tangent", 4, 2, 5, 1),
    Sketcher.Constraint("Tangent", 5, 2, 6, 1),
    Sketcher.Constraint("Tangent", 6, 2, 7, 1),
    Sketcher.Constraint("Tangent", 7, 2, 4, 1),
    Sketcher.Constraint("Tangent", 8, 2, 9, 1),
    Sketcher.Constraint("Tangent", 9, 2, 10, 1),
    Sketcher.Constraint("Tangent", 10, 2, 11, 1),
    Sketcher.Constraint("Tangent", 11, 2, 8, 1),
    Sketcher.Constraint("Tangent", 12, 2, 13, 1),
    Sketcher.Constraint("Tangent", 13, 2, 14, 1),
    Sketcher.Constraint("Tangent", 14, 2, 15, 1),
    Sketcher.Constraint("Tangent", 15, 2, 12, 1),
    Sketcher.Constraint("Horizontal", 0),
    Sketcher.Constraint("Horizontal", 2),
    Sketcher.Constraint("Horizontal", 4),
    Sketcher.Constraint("Horizontal", 6),
    Sketcher.Constraint("Horizontal", 8),
    Sketcher.Constraint("Horizontal", 10),
    Sketcher.Constraint("Horizontal", 12),
    Sketcher.Constraint("Horizontal", 14),
    Sketcher.Constraint("Equal", 3, 5),
    Sketcher.Constraint("Equal", 7, 9),
    Sketcher.Constraint("Equal", 11, 13),
    Sketcher.Constraint("Horizontal", 3, 3, 5, 3),
    Sketcher.Constraint("Horizontal", 11, 3, 13, 3),
    Sketcher.Constraint("Vertical", 7, 3, 9, 3),
    Sketcher.Constraint("Vertical", 5, 3, 11, 3),
    Sketcher.Constraint("Vertical", 3, 3, 13, 3),
    Sketcher.Constraint("Vertical", 1, 3, 15, 3),
    Sketcher.Constraint("Equal", 2, 4),
    Sketcher.Constraint("Radius", 1, Q("2.1 mm")),
    Sketcher.Constraint("DistanceX", 0, 2, 0, 1, Q("1 mm")),
    Sketcher.Constraint("DistanceY", -1, 1, 1, 3, Q("7 mm")),
    Sketcher.Constraint("DistanceY", -1, 1, 9, 3, Q("243 mm")),
    Sketcher.Constraint("DistanceX", 3, 3, 5, 3, Q("14 mm")),
    Sketcher.Constraint("DistanceX", 1, 3, -1, 1, Q("48.04716 mm")),
])
pocket3 = body.newObject("PartDesign::Pocket", "Pocket002")
pocket3.Profile = sketch4
pocket3.Length = 250

# Sketch on YZ plane
sketch5 = body.newObject("Sketcher::SketchObject", "Sketch004")
sketch5.AttachmentSupport = (doc.getObject("YZ_Plane"), [""])
sketch5.MapMode = "FlatFace"
sketch5.AttachmentOffset = App.Placement(Vector(0, 0, -110.770473), App.Rotation())
sketch5.addGeometry([
    Part.LineSegment(Vector(9.1, -14.9, 0), Vector(9.1, -15.9, 0)),  # 0
    Part.ArcOfCircle(Part.Circle(Vector(7, -15.9, 0), Vector(0, 0, 1), 2.1), math.radians(180), math.radians(360)),  # 1
    Part.LineSegment(Vector(4.9, -15.9, 0), Vector(4.9, -14.9, 0)),  # 2
    Part.ArcOfCircle(Part.Circle(Vector(7, -14.9, 0), Vector(0, 0, 1), 2.1), math.radians(0), math.radians(180)),  # 3
    Part.LineSegment(Vector(4.9, -0.9, 0), Vector(4.9, 0.1, 0)),  # 4
    Part.ArcOfCircle(Part.Circle(Vector(7, 0.1, 0), Vector(0, 0, 1), 2.1), math.radians(0), math.radians(180)),  # 5
    Part.LineSegment(Vector(9.1, 0.1, 0), Vector(9.1, -0.9, 0)),  # 6
    Part.ArcOfCircle(Part.Circle(Vector(7, -0.9, 0), Vector(0, 0, 1), 2.1), math.radians(180), math.radians(360)),  # 7
    Part.LineSegment(Vector(4.9, 14.1, 0), Vector(4.9, 15.1, 0)),  # 8
    Part.ArcOfCircle(Part.Circle(Vector(7, 15.1, 0), Vector(0, 0, 1), 2.1), math.radians(0), math.radians(180)),  # 9
    Part.LineSegment(Vector(9.1, 15.1, 0), Vector(9.1, 14.1, 0)),  # 10
    Part.ArcOfCircle(Part.Circle(Vector(7, 14.1, 0), Vector(0, 0, 1), 2.1), math.radians(180), math.radians(360)),  # 11
    Part.LineSegment(Vector(240.9, 14.1, 0), Vector(240.9, 15.1, 0)),  # 12
    Part.ArcOfCircle(Part.Circle(Vector(243, 15.1, 0), Vector(0, 0, 1), 2.1), math.radians(0), math.radians(180)),  # 13
    Part.LineSegment(Vector(245.1, 15.1, 0), Vector(245.1, 14.1, 0)),  # 14
    Part.ArcOfCircle(Part.Circle(Vector(243, 14.1, 0), Vector(0, 0, 1), 2.1), math.radians(180), math.radians(360)),  # 15
    Part.LineSegment(Vector(240.9, -0.9, 0), Vector(240.9, 0.1, 0)),  # 16
    Part.ArcOfCircle(Part.Circle(Vector(243, 0.1, 0), Vector(0, 0, 1), 2.1), math.radians(0), math.radians(180)),  # 17
    Part.LineSegment(Vector(245.1, 0.1, 0), Vector(245.1, -0.9, 0)),  # 18
    Part.ArcOfCircle(Part.Circle(Vector(243, -0.9, 0), Vector(0, 0, 1), 2.1), math.radians(180), math.radians(360)),  # 19
    Part.LineSegment(Vector(240.9, -15.9, 0), Vector(240.9, -14.9, 0)),  # 20
    Part.ArcOfCircle(Part.Circle(Vector(243, -14.9, 0), Vector(0, 0, 1), 2.1), math.radians(0), math.radians(180)),  # 21
    Part.LineSegment(Vector(245.1, -14.9, 0), Vector(245.1, -15.9, 0)),  # 22
    Part.ArcOfCircle(Part.Circle(Vector(243, -15.9, 0), Vector(0, 0, 1), 2.1), math.radians(180), math.radians(360)),  # 23
], False)
sketch5.addConstraint([
    Sketcher.Constraint("Tangent", 0, 2, 1, 2),
    Sketcher.Constraint("Tangent", 1, 1, 2, 1),
    Sketcher.Constraint("Tangent", 2, 2, 3, 2),
    Sketcher.Constraint("Tangent", 3, 1, 0, 1),
    Sketcher.Constraint("Tangent", 4, 2, 5, 2),
    Sketcher.Constraint("Tangent", 5, 1, 6, 1),
    Sketcher.Constraint("Tangent", 6, 2, 7, 2),
    Sketcher.Constraint("Tangent", 7, 1, 4, 1),
    Sketcher.Constraint("Tangent", 8, 2, 9, 2),
    Sketcher.Constraint("Tangent", 9, 1, 10, 1),
    Sketcher.Constraint("Tangent", 10, 2, 11, 2),
    Sketcher.Constraint("Tangent", 11, 1, 8, 1),
    Sketcher.Constraint("Tangent", 12, 2, 13, 2),
    Sketcher.Constraint("Tangent", 13, 1, 14, 1),
    Sketcher.Constraint("Tangent", 14, 2, 15, 2),
    Sketcher.Constraint("Tangent", 15, 1, 12, 1),
    Sketcher.Constraint("Tangent", 16, 2, 17, 2),
    Sketcher.Constraint("Tangent", 17, 1, 18, 1),
    Sketcher.Constraint("Tangent", 18, 2, 19, 2),
    Sketcher.Constraint("Tangent", 19, 1, 16, 1),
    Sketcher.Constraint("Tangent", 20, 2, 21, 2),
    Sketcher.Constraint("Tangent", 21, 1, 22, 1),
    Sketcher.Constraint("Tangent", 22, 2, 23, 2),
    Sketcher.Constraint("Tangent", 23, 1, 20, 1),
    Sketcher.Constraint("Vertical", 0),
    Sketcher.Constraint("Vertical", 2),
    Sketcher.Constraint("Vertical", 4),
    Sketcher.Constraint("Vertical", 6),
    Sketcher.Constraint("Vertical", 8),
    Sketcher.Constraint("Vertical", 10),
    Sketcher.Constraint("Vertical", 12),
    Sketcher.Constraint("Vertical", 14),
    Sketcher.Constraint("Vertical", 16),
    Sketcher.Constraint("Vertical", 18),
    Sketcher.Constraint("Vertical", 20),
    Sketcher.Constraint("Vertical", 22),
    Sketcher.Constraint("Equal", 3, 5),
    Sketcher.Constraint("Equal", 7, 9),
    Sketcher.Constraint("Equal", 11, 13),
    Sketcher.Constraint("Equal", 15, 17),
    Sketcher.Constraint("Equal", 19, 21),
    Sketcher.Constraint("Horizontal", 9, 3, 13, 3),
    Sketcher.Constraint("Horizontal", 11, 3, 15, 3),
    Sketcher.Constraint("Horizontal", 5, 3, 17, 3),
    Sketcher.Constraint("Horizontal", 7, 3, 19, 3),
    Sketcher.Constraint("Horizontal", 3, 3, 21, 3),
    Sketcher.Constraint("Horizontal", 1, 3, 23, 3),
    Sketcher.Constraint("Vertical", 3, 3, 5, 3),
    Sketcher.Constraint("Vertical", 7, 3, 9, 3),
    Sketcher.Constraint("Vertical", 15, 3, 17, 3),
    Sketcher.Constraint("Vertical", 19, 3, 21, 3),
    Sketcher.Constraint("Equal", 2, 4),
    Sketcher.Constraint("Equal", 6, 8),
    Sketcher.Constraint("Radius", 1, Q("2.1 mm")),
    Sketcher.Constraint("DistanceY", 0, 2, 0, 1, Q("1 mm")),
    Sketcher.Constraint("DistanceX", -1, 1, 1, 3, Q("7 mm")),
    Sketcher.Constraint("DistanceX", -1, 1, 13, 3, Q("243 mm")),
    Sketcher.Constraint("DistanceY", 3, 3, 5, 3, Q("15 mm")),
    Sketcher.Constraint("DistanceY", 5, 3, 9, 3, Q("15 mm")),
    Sketcher.Constraint("DistanceY", 1, 3, -1, 1, Q("15.864763 mm")),
])
pocket4 = body.newObject("PartDesign::Pocket", "Pocket003")
pocket4.Profile = sketch5
pocket4.Length = 250
pocket4.Reversed = True

# Sketch on YZ plane
sketch6 = body.newObject("Sketcher::SketchObject", "Sketch005")
sketch6.AttachmentSupport = (doc.getObject("YZ_Plane"), [""])
sketch6.MapMode = "FlatFace"
sketch6.AttachmentOffset = App.Placement(Vector(0, 0, -74.774045), App.Rotation())
sketch6.addGeometry([
    Part.LineSegment(Vector(250, -52.9, 0), Vector(0, -52.9, 0)),
    Part.LineSegment(Vector(0, -52.9, 0), Vector(0, -54.9, 0)),
    Part.LineSegment(Vector(0, -54.9, 0), Vector(250, -54.9, 0)),
    Part.LineSegment(Vector(250, -54.9, 0), Vector(250, -52.9, 0)),
], False)
sketch6.addConstraint([
    Sketcher.Constraint("Coincident", 0, 2, 1, 1),
    Sketcher.Constraint("Coincident", 1, 2, 2, 1),
    Sketcher.Constraint("Coincident", 2, 2, 3, 1),
    Sketcher.Constraint("Coincident", 3, 2, 0, 1),
    Sketcher.Constraint("Horizontal", 0),
    Sketcher.Constraint("Vertical", 1),
    Sketcher.Constraint("Horizontal", 2),
    Sketcher.Constraint("Vertical", 3),
    Sketcher.Constraint("PointOnObject", 0, 2, -2),
    Sketcher.Constraint("DistanceX", 0, 2, 0, 1, Q("250 mm")),
    Sketcher.Constraint("DistanceY", 1, 2, 1, 1, Q("2 mm")),
    Sketcher.Constraint("DistanceY", 0, 2, -1, 1, Q("52.864763 mm")),
])
pocket5 = body.newObject("PartDesign::Pocket", "Pocket004")
pocket5.Profile = sketch6
pocket5.Length = 7

doc.recompute()
